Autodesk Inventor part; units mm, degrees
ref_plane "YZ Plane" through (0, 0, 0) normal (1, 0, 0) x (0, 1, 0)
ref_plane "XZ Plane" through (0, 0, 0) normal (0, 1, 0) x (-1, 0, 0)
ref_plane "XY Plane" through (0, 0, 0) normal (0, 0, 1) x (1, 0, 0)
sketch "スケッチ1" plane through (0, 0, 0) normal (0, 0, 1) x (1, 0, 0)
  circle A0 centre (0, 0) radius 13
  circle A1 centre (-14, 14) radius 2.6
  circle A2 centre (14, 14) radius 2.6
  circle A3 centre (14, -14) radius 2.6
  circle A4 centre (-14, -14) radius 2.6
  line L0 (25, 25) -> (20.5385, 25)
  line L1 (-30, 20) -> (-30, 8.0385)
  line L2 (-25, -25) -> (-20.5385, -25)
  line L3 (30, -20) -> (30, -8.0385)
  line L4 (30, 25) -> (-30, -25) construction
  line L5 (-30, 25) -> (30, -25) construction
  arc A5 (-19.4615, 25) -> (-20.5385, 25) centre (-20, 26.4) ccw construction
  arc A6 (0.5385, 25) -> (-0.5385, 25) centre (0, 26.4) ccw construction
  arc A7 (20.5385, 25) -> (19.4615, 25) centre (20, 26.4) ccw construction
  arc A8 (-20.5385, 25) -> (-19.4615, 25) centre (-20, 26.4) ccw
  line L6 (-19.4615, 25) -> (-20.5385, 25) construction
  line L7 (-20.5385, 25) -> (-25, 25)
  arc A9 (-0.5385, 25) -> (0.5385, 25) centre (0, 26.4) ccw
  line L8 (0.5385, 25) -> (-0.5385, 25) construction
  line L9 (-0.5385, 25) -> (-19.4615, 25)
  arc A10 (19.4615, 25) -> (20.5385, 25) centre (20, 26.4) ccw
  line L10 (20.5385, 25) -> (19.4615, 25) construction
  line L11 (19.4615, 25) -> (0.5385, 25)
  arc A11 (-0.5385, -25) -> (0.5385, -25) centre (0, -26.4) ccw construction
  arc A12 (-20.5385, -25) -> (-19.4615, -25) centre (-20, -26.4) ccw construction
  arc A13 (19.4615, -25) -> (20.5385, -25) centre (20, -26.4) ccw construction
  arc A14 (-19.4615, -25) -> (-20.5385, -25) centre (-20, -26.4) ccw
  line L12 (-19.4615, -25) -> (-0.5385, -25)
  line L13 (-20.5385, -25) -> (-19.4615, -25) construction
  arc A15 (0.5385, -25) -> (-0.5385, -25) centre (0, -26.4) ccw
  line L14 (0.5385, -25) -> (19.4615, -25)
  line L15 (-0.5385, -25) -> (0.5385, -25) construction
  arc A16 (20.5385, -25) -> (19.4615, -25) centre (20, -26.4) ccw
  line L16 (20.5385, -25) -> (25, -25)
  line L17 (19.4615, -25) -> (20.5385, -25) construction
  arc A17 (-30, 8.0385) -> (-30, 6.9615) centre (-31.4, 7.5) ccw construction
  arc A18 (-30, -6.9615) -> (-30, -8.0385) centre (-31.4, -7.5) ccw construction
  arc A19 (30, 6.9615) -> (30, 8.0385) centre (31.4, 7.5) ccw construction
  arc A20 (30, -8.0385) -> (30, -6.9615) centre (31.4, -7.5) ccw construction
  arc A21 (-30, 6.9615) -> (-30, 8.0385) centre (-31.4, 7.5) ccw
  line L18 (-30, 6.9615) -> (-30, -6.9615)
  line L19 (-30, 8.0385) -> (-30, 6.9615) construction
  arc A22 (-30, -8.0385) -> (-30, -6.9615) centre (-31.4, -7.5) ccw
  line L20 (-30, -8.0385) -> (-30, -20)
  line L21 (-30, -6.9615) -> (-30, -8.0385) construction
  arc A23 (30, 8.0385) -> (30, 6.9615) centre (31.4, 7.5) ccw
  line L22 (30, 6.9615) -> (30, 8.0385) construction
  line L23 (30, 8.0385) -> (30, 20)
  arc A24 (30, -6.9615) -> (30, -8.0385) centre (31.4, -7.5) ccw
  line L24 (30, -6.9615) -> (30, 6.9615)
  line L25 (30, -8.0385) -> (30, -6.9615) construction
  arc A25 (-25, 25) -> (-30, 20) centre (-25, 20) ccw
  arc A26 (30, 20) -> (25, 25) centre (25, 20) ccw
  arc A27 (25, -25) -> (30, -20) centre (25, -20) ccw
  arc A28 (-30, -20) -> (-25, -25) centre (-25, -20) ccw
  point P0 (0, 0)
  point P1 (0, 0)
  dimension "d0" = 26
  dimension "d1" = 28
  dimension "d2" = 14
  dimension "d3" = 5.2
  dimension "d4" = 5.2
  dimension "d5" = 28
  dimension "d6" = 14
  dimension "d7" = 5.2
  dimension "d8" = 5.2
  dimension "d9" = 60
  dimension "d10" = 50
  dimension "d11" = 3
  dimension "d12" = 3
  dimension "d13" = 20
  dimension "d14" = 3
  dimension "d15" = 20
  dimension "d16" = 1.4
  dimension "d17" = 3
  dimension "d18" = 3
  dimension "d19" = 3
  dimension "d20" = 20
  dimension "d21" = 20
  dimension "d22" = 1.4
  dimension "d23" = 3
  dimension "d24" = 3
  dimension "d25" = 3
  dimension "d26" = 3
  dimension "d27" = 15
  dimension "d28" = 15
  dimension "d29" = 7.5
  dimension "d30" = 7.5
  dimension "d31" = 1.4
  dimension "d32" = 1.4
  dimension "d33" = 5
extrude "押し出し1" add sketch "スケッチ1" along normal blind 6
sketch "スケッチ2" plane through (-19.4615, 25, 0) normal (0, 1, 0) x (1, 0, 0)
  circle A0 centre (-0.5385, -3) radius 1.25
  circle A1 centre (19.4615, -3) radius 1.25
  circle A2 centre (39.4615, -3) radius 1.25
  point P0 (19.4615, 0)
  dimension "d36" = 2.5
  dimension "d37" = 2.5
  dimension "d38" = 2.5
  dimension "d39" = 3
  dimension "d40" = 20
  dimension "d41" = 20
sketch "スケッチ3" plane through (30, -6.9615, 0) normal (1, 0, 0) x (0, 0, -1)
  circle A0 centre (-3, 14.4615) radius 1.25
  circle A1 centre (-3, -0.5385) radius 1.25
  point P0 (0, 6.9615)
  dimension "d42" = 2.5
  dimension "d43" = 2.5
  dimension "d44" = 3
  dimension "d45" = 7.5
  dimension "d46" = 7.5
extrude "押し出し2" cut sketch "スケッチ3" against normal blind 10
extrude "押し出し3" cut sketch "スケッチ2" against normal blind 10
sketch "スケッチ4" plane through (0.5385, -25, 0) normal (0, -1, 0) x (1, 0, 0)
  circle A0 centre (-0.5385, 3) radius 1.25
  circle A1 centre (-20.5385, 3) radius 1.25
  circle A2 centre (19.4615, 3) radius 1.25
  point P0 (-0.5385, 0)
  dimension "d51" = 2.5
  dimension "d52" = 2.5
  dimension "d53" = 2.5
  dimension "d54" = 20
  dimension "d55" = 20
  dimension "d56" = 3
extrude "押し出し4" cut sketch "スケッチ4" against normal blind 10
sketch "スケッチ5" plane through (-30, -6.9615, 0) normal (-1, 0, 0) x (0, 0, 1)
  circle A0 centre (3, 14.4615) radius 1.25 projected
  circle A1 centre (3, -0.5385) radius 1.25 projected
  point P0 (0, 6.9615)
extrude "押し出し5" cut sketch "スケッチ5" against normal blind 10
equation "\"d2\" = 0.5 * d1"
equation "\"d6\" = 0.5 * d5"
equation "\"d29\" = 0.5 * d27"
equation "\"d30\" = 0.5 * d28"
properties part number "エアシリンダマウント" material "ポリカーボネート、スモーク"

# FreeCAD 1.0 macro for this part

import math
import FreeCAD as App
import Part
import Sketcher

V = App.Vector

doc = App.newDocument("Part")
body = doc.addObject("PartDesign::Body", "Body")

# Sketch on XY plane
sketch1 = doc.addObject("Sketcher::SketchObject", "Sketch")
body.addObject(sketch1)
sketch1.AttachmentSupport = (doc.XY_Plane, [""])
sketch1.MapMode = "FlatFace"
sketch1.addGeometry([
    Part.ArcOfCircle(Part.Circle(V(25, 20, 0), V(0, 0, 1), 5), math.radians(0), math.radians(90)),  # 0
    Part.LineSegment(V(25, 25, 0), V(20.5, 25, 0)),  # 1
    Part.ArcOfCircle(Part.Circle(V(20, 26.4, 0), V(0, 0, 1), 1.5), math.radians(-111), math.radians(-69)),  # 2
    Part.LineSegment(V(19.5, 25, 0), V(0.5, 25, 0)),  # 3
    Part.ArcOfCircle(Part.Circle(V(0, 26.4, 0), V(0, 0, 1), 1.5), math.radians(-111), math.radians(-69)),  # 4
    Part.LineSegment(V(-0.5, 25, 0), V(-19.5, 25, 0)),  # 5
    Part.ArcOfCircle(Part.Circle(V(-20, 26.4, 0), V(0, 0, 1), 1.5), math.radians(-111), math.radians(-69)),  # 6
    Part.LineSegment(V(-20.5, 25, 0), V(-25, 25, 0)),  # 7
    Part.ArcOfCircle(Part.Circle(V(-25, 20, 0), V(0, 0, 1), 5), math.radians(90), math.radians(180)),  # 8
    Part.LineSegment(V(-30, 20, 0), V(-30, 8, 0)),  # 9
    Part.ArcOfCircle(Part.Circle(V(-31.4, 7.5, 0), V(0, 0, 1), 1.5), math.radians(-21), math.radians(21)),  # 10
    Part.LineSegment(V(-30, 7, 0), V(-30, -7, 0)),  # 11
    Part.ArcOfCircle(Part.Circle(V(-31.4, -7.5, 0), V(0, 0, 1), 1.5), math.radians(-21), math.radians(21)),  # 12
    Part.LineSegment(V(-30, -8, 0), V(-30, -20, 0)),  # 13
    Part.ArcOfCircle(Part.Circle(V(-25, -20, 0), V(0, 0, 1), 5), math.radians(180), math.radians(270)),  # 14
    Part.LineSegment(V(-25, -25, 0), V(-20.5, -25, 0)),  # 15
    Part.ArcOfCircle(Part.Circle(V(-20, -26.4, 0), V(0, 0, 1), 1.5), math.radians(69), math.radians(111)),  # 16
    Part.LineSegment(V(-19.5, -25, 0), V(-0.5, -25, 0)),  # 17
    Part.ArcOfCircle(Part.Circle(V(0, -26.4, 0), V(0, 0, 1), 1.5), math.radians(69), math.radians(111)),  # 18
    Part.LineSegment(V(0.5, -25, 0), V(19.5, -25, 0)),  # 19
    Part.ArcOfCircle(Part.Circle(V(20, -26.4, 0), V(0, 0, 1), 1.5), math.radians(69), math.radians(111)),  # 20
    Part.LineSegment(V(20.5, -25, 0), V(25, -25, 0)),  # 21
    Part.ArcOfCircle(Part.Circle(V(25, -20, 0), V(0, 0, 1), 5), math.radians(-90), math.radians(0)),  # 22
    Part.LineSegment(V(30, -20, 0), V(30, -8, 0)),  # 23
    Part.ArcOfCircle(Part.Circle(V(31.4, -7.5, 0), V(0, 0, 1), 1.5), math.radians(159), math.radians(201)),  # 24
    Part.LineSegment(V(30, -7, 0), V(30, 7, 0)),  # 25
    Part.ArcOfCircle(Part.Circle(V(31.4, 7.5, 0), V(0, 0, 1), 1.5), math.radians(159), math.radians(201)),  # 26
    Part.LineSegment(V(30, 8, 0), V(30, 20, 0)),  # 27
    Part.Circle(V(-14, -14, 0), V(0, 0, 1), 2.6),  # 28
    Part.Circle(V(14, -14, 0), V(0, 0, 1), 2.6),  # 29
    Part.Circle(V(-14, 14, 0), V(0, 0, 1), 2.6),  # 30
    Part.Circle(V(0, 0, 0), V(0, 0, 1), 13),  # 31
    Part.Circle(V(14, 14, 0), V(0, 0, 1), 2.6),  # 32
], False)
sketch1.addConstraint([
    Sketcher.Constraint("Tangent", 0, 2, 1, 1),
    Sketcher.Constraint("Coincident", 1, 2, 2, 2),
    Sketcher.Constraint("Coincident", 2, 1, 3, 1),
    Sketcher.Constraint("Coincident", 3, 2, 4, 2),
    Sketcher.Constraint("Coincident", 4, 1, 5, 1),
    Sketcher.Constraint("Coincident", 5, 2, 6, 2),
    Sketcher.Constraint("Coincident", 6, 1, 7, 1),
    Sketcher.Constraint("Tangent", 7, 2, 8, 1),
    Sketcher.Constraint("Tangent", 8, 2, 9, 1),
    Sketcher.Constraint("Coincident", 9, 2, 10, 2),
    Sketcher.Constraint("Coincident", 10, 1, 11, 1),
    Sketcher.Constraint("Coincident", 11, 2, 12, 2),
    Sketcher.Constraint("Coincident", 12, 1, 13, 1),
    Sketcher.Constraint("Tangent", 13, 2, 14, 1),
    Sketcher.Constraint("Tangent", 14, 2, 15, 1),
    Sketcher.Constraint("Coincident", 15, 2, 16, 2),
    Sketcher.Constraint("Coincident", 16, 1, 17, 1),
    Sketcher.Constraint("Coincident", 17, 2, 18, 2),
    Sketcher.Constraint("Coincident", 18, 1, 19, 1),
    Sketcher.Constraint("Coincident", 19, 2, 20, 2),
    Sketcher.Constraint("Coincident", 20, 1, 21, 1),
    Sketcher.Constraint("Tangent", 21, 2, 22, 1),
    Sketcher.Constraint("Tangent", 22, 2, 23, 1),
    Sketcher.Constraint("Coincident", 23, 2, 24, 2),
    Sketcher.Constraint("Coincident", 24, 1, 25, 1),
    Sketcher.Constraint("Coincident", 25, 2, 26, 2),
    Sketcher.Constraint("Coincident", 26, 1, 27, 1),
    Sketcher.Constraint("Tangent", 27, 2, 0, 1),
    Sketcher.Constraint("Horizontal", 1),
    Sketcher.Constraint("Horizontal", 3),
    Sketcher.Constraint("Horizontal", 5),
    Sketcher.Constraint("Horizontal", 7),
    Sketcher.Constraint("Vertical", 9),
    Sketcher.Constraint("Vertical", 11),
    Sketcher.Constraint("Vertical", 13),
    Sketcher.Constraint("Horizontal", 15),
    Sketcher.Constraint("Horizontal", 17),
    Sketcher.Constraint("Horizontal", 19),
    Sketcher.Constraint("Horizontal", 21),
    Sketcher.Constraint("Vertical", 23),
    Sketcher.Constraint("Vertical", 25),
    Sketcher.Constraint("Vertical", 27),
    Sketcher.Constraint("Coincident", 31, 3, -1, 1),
    Sketcher.Constraint("Equal", 2, 4),
    Sketcher.Constraint("Equal", 4, 6),
    Sketcher.Constraint("Equal", 0, 8),
    Sketcher.Constraint("Equal", 6, 10),
    Sketcher.Constraint("Equal", 10, 12),
    Sketcher.Constraint("Equal", 8, 14),
    Sketcher.Constraint("Equal", 12, 16),
    Sketcher.Constraint("Equal", 16, 18),
    Sketcher.Constraint("Equal", 18, 20),
    Sketcher.Constraint("Equal", 14, 22),
    Sketcher.Constraint("Equal", 20, 24),
    Sketcher.Constraint("Equal", 24, 26),
    Sketcher.Constraint("Equal", 28, 29),
    Sketcher.Constraint("Equal", 29, 30),
    Sketcher.Constraint("Equal", 30, 32),
    Sketcher.Constraint("Symmetric", 0, 3, 14, 3, -1, 1),
    Sketcher.Constraint("Symmetric", 2, 3, 16, 3, -1, 1),
    Sketcher.Constraint("Symmetric", 4, 3, 18, 3, -1, 1),
    Sketcher.Constraint("Symmetric", 6, 3, 20, 3, -1, 1),
    Sketcher.Constraint("Symmetric", 8, 3, 22, 3, -1, 1),
    Sketcher.Constraint("Symmetric", 10, 3, 24, 3, -1, 1),
    Sketcher.Constraint("Symmetric", 12, 3, 26, 3, -1, 1),
    Sketcher.Constraint("Symmetric", 29, 3, 30, 3, -1, 1),
    Sketcher.Constraint("Symmetric", 28, 3, 32, 3, -1, 1),
    Sketcher.Constraint("Symmetric", 2, 3, 6, 3, -2),
    Sketcher.Constraint("Symmetric", 0, 3, 8, 3, -2),
    Sketcher.Constraint("Symmetric", 12, 3, 24, 3, -2),
    Sketcher.Constraint("Symmetric", 28, 3, 29, 3, -2),
    Sketcher.Constraint("Symmetric", 3, 2, 4, 1, -2),
    Sketcher.Constraint("Horizontal", 2, 3, 4, 3),
    Sketcher.Constraint("Horizontal", 1, 2, 2, 1),
    Sketcher.Constraint("Horizontal", 15, 2, 16, 1),
    Sketcher.Constraint("Horizontal", 17, 2, 18, 1),
    Sketcher.Constraint("Horizontal", 11, 2, 24, 1),
    Sketcher.Constraint("Vertical", 9, 2, 10, 1),
    Sketcher.Constraint("Diameter", 31, 26.0),
    Sketcher.Constraint("Radius", 0, 5.0),
    Sketcher.Constraint("Diameter", 28, 5.2),
    Sketcher.Constraint("Radius", 2, 1.5),
    Sketcher.Constraint("DistanceY", -1, 1, 0, 3, 20.0),
    Sketcher.Constraint("DistanceX", -1, 1, 2, 3, 20.0),
    Sketcher.Constraint("DistanceX", 28, 3, -1, 1, 14.0),
    Sketcher.Constraint("DistanceY", 28, 3, -1, 1, 14.0),
    Sketcher.Constraint("DistanceX", 2, 3, 0, 3, 5.0),
    Sketcher.Constraint("DistanceY", 12, 3, 10, 3, 15.0),
    Sketcher.Constraint("DistanceY", 0, 2, 2, 3, 1.4),
    Sketcher.Constraint("DistanceX", 10, 3, 9, 2, 1.4),
])
pad1 = doc.addObject("PartDesign::Pad", "Pad")
body.addObject(pad1)
pad1.Profile = sketch1
pad1.Length = 6

# Sketch on YZ plane
sketch2 = doc.addObject("Sketcher::SketchObject", "Sketch001")
body.addObject(sketch2)
sketch2.AttachmentSupport = (doc.YZ_Plane, [""])
sketch2.MapMode = "FlatFace"
sketch2.AttachmentOffset = App.Placement(V(0, 0, 30), App.Rotation())
sketch2.addGeometry([
    Part.Circle(V(7.5, 3, 0), V(0, 0, 1), 1.2),
    Part.Circle(V(-7.5, 3, 0), V(0, 0, 1), 1.2),
], False)
sketch2.addConstraint([
    Sketcher.Constraint("Equal", 0, 1),
    Sketcher.Constraint("Symmetric", 0, 3, 1, 3, -2),
    Sketcher.Constraint("Diameter", 0, 2.5),
    Sketcher.Constraint("DistanceY", -1, 1, 0, 3, 3.0),
    Sketcher.Constraint("DistanceX", -1, 1, 0, 3, 7.5),
])
pocket1 = doc.addObject("PartDesign::Pocket", "Pocket")
body.addObject(pocket1)
pocket1.Profile = sketch2
pocket1.Length = 10

# Sketch on XZ plane
sketch3 = doc.addObject("Sketcher::SketchObject", "Sketch002")
body.addObject(sketch3)
sketch3.AttachmentSupport = (doc.XZ_Plane, [""])
sketch3.MapMode = "FlatFace"
sketch3.AttachmentOffset = App.Placement(V(0, 0, -25), App.Rotation())
sketch3.addGeometry([
    Part.Circle(V(-20, 3, 0), V(0, 0, 1), 1.2),
    Part.Circle(V(0, 3, 0), V(0, 0, 1), 1.2),
    Part.Circle(V(20, 3, 0), V(0, 0, 1), 1.2),
], False)
sketch3.addConstraint([
    Sketcher.Constraint("Equal", 0, 1),
    Sketcher.Constraint("Equal", 1, 2),
    Sketcher.Constraint("Symmetric", 0, 3, 2, 3, -2),
    Sketcher.Constraint("PointOnObject", 1, 3, -2),
    Sketcher.Constraint("Horizontal", 0, 3, 1, 3),
    Sketcher.Constraint("Diameter", 0, 2.5),
    Sketcher.Constraint("DistanceX", 0, 3, -1, 1, 20.0),
    Sketcher.Constraint("DistanceY", -1, 1, 0, 3, 3.0),
])
pocket2 = doc.addObject("PartDesign::Pocket", "Pocket001")
body.addObject(pocket2)
pocket2.Profile = sketch3
pocket2.Length = 10
pocket2.Reversed = True

# Sketch on XZ plane
sketch4 = doc.addObject("Sketcher::SketchObject", "Sketch003")
body.addObject(sketch4)
sketch4.AttachmentSupport = (doc.XZ_Plane, [""])
sketch4.MapMode = "FlatFace"
sketch4.AttachmentOffset = App.Placement(V(0, 0, 25), App.Rotation())
sketch4.addGeometry([
    Part.Circle(V(0, 3, 0), V(0, 0, 1), 1.2),
    Part.Circle(V(-20, 3, 0), V(0, 0, 1), 1.2),
    Part.Circle(V(20, 3, 0), V(0, 0, 1), 1.2),
], False)
sketch4.addConstraint([
    Sketcher.Constraint("Equal", 0, 1),
    Sketcher.Constraint("Equal", 1, 2),
    Sketcher.Constraint("Symmetric", 1, 3, 2, 3, -2),
    Sketcher.Constraint("PointOnObject", 0, 3, -2),
    Sketcher.Constraint("Horizontal", 0, 3, 1, 3),
    Sketcher.Constraint("Diameter", 0, 2.5),
    Sketcher.Constraint("DistanceY", -1, 1, 0, 3, 3.0),
    Sketcher.Constraint("DistanceX", 1, 3, -1, 1, 20.0),
])
pocket3 = doc.addObject("PartDesign::Pocket", "Pocket002")
body.addObject(pocket3)
pocket3.Profile = sketch4
pocket3.Length = 10

# Sketch on YZ plane
sketch5 = doc.addObject("Sketcher::SketchObject", "Sketch004")
body.addObject(sketch5)
sketch5.AttachmentSupport = (doc.YZ_Plane, [""])
sketch5.MapMode = "FlatFace"
sketch5.AttachmentOffset = App.Placement(V(0, 0, -30), App.Rotation())
sketch5.addGeometry([
    Part.Circle(V(7.5, 3, 0), V(0, 0, 1), 1.2),
    Part.Circle(V(-7.5, 3, 0), V(0, 0, 1), 1.2),
], False)
sketch5.addConstraint([
    Sketcher.Constraint("Equal", 0, 1),
    Sketcher.Constraint("Symmetric", 0, 3, 1, 3, -2),
    Sketcher.Constraint("Diameter", 0, 2.5),
    Sketcher.Constraint("DistanceY", -1, 1, 0, 3, 3.0),
    Sketcher.Constraint("DistanceX", 1, 3, 0, 3, 15.0),
])
pocket4 = doc.addObject("PartDesign::Pocket", "Pocket003")
body.addObject(pocket4)
pocket4.Profile = sketch5
pocket4.Length = 10
pocket4.Reversed = True

doc.recompute()
